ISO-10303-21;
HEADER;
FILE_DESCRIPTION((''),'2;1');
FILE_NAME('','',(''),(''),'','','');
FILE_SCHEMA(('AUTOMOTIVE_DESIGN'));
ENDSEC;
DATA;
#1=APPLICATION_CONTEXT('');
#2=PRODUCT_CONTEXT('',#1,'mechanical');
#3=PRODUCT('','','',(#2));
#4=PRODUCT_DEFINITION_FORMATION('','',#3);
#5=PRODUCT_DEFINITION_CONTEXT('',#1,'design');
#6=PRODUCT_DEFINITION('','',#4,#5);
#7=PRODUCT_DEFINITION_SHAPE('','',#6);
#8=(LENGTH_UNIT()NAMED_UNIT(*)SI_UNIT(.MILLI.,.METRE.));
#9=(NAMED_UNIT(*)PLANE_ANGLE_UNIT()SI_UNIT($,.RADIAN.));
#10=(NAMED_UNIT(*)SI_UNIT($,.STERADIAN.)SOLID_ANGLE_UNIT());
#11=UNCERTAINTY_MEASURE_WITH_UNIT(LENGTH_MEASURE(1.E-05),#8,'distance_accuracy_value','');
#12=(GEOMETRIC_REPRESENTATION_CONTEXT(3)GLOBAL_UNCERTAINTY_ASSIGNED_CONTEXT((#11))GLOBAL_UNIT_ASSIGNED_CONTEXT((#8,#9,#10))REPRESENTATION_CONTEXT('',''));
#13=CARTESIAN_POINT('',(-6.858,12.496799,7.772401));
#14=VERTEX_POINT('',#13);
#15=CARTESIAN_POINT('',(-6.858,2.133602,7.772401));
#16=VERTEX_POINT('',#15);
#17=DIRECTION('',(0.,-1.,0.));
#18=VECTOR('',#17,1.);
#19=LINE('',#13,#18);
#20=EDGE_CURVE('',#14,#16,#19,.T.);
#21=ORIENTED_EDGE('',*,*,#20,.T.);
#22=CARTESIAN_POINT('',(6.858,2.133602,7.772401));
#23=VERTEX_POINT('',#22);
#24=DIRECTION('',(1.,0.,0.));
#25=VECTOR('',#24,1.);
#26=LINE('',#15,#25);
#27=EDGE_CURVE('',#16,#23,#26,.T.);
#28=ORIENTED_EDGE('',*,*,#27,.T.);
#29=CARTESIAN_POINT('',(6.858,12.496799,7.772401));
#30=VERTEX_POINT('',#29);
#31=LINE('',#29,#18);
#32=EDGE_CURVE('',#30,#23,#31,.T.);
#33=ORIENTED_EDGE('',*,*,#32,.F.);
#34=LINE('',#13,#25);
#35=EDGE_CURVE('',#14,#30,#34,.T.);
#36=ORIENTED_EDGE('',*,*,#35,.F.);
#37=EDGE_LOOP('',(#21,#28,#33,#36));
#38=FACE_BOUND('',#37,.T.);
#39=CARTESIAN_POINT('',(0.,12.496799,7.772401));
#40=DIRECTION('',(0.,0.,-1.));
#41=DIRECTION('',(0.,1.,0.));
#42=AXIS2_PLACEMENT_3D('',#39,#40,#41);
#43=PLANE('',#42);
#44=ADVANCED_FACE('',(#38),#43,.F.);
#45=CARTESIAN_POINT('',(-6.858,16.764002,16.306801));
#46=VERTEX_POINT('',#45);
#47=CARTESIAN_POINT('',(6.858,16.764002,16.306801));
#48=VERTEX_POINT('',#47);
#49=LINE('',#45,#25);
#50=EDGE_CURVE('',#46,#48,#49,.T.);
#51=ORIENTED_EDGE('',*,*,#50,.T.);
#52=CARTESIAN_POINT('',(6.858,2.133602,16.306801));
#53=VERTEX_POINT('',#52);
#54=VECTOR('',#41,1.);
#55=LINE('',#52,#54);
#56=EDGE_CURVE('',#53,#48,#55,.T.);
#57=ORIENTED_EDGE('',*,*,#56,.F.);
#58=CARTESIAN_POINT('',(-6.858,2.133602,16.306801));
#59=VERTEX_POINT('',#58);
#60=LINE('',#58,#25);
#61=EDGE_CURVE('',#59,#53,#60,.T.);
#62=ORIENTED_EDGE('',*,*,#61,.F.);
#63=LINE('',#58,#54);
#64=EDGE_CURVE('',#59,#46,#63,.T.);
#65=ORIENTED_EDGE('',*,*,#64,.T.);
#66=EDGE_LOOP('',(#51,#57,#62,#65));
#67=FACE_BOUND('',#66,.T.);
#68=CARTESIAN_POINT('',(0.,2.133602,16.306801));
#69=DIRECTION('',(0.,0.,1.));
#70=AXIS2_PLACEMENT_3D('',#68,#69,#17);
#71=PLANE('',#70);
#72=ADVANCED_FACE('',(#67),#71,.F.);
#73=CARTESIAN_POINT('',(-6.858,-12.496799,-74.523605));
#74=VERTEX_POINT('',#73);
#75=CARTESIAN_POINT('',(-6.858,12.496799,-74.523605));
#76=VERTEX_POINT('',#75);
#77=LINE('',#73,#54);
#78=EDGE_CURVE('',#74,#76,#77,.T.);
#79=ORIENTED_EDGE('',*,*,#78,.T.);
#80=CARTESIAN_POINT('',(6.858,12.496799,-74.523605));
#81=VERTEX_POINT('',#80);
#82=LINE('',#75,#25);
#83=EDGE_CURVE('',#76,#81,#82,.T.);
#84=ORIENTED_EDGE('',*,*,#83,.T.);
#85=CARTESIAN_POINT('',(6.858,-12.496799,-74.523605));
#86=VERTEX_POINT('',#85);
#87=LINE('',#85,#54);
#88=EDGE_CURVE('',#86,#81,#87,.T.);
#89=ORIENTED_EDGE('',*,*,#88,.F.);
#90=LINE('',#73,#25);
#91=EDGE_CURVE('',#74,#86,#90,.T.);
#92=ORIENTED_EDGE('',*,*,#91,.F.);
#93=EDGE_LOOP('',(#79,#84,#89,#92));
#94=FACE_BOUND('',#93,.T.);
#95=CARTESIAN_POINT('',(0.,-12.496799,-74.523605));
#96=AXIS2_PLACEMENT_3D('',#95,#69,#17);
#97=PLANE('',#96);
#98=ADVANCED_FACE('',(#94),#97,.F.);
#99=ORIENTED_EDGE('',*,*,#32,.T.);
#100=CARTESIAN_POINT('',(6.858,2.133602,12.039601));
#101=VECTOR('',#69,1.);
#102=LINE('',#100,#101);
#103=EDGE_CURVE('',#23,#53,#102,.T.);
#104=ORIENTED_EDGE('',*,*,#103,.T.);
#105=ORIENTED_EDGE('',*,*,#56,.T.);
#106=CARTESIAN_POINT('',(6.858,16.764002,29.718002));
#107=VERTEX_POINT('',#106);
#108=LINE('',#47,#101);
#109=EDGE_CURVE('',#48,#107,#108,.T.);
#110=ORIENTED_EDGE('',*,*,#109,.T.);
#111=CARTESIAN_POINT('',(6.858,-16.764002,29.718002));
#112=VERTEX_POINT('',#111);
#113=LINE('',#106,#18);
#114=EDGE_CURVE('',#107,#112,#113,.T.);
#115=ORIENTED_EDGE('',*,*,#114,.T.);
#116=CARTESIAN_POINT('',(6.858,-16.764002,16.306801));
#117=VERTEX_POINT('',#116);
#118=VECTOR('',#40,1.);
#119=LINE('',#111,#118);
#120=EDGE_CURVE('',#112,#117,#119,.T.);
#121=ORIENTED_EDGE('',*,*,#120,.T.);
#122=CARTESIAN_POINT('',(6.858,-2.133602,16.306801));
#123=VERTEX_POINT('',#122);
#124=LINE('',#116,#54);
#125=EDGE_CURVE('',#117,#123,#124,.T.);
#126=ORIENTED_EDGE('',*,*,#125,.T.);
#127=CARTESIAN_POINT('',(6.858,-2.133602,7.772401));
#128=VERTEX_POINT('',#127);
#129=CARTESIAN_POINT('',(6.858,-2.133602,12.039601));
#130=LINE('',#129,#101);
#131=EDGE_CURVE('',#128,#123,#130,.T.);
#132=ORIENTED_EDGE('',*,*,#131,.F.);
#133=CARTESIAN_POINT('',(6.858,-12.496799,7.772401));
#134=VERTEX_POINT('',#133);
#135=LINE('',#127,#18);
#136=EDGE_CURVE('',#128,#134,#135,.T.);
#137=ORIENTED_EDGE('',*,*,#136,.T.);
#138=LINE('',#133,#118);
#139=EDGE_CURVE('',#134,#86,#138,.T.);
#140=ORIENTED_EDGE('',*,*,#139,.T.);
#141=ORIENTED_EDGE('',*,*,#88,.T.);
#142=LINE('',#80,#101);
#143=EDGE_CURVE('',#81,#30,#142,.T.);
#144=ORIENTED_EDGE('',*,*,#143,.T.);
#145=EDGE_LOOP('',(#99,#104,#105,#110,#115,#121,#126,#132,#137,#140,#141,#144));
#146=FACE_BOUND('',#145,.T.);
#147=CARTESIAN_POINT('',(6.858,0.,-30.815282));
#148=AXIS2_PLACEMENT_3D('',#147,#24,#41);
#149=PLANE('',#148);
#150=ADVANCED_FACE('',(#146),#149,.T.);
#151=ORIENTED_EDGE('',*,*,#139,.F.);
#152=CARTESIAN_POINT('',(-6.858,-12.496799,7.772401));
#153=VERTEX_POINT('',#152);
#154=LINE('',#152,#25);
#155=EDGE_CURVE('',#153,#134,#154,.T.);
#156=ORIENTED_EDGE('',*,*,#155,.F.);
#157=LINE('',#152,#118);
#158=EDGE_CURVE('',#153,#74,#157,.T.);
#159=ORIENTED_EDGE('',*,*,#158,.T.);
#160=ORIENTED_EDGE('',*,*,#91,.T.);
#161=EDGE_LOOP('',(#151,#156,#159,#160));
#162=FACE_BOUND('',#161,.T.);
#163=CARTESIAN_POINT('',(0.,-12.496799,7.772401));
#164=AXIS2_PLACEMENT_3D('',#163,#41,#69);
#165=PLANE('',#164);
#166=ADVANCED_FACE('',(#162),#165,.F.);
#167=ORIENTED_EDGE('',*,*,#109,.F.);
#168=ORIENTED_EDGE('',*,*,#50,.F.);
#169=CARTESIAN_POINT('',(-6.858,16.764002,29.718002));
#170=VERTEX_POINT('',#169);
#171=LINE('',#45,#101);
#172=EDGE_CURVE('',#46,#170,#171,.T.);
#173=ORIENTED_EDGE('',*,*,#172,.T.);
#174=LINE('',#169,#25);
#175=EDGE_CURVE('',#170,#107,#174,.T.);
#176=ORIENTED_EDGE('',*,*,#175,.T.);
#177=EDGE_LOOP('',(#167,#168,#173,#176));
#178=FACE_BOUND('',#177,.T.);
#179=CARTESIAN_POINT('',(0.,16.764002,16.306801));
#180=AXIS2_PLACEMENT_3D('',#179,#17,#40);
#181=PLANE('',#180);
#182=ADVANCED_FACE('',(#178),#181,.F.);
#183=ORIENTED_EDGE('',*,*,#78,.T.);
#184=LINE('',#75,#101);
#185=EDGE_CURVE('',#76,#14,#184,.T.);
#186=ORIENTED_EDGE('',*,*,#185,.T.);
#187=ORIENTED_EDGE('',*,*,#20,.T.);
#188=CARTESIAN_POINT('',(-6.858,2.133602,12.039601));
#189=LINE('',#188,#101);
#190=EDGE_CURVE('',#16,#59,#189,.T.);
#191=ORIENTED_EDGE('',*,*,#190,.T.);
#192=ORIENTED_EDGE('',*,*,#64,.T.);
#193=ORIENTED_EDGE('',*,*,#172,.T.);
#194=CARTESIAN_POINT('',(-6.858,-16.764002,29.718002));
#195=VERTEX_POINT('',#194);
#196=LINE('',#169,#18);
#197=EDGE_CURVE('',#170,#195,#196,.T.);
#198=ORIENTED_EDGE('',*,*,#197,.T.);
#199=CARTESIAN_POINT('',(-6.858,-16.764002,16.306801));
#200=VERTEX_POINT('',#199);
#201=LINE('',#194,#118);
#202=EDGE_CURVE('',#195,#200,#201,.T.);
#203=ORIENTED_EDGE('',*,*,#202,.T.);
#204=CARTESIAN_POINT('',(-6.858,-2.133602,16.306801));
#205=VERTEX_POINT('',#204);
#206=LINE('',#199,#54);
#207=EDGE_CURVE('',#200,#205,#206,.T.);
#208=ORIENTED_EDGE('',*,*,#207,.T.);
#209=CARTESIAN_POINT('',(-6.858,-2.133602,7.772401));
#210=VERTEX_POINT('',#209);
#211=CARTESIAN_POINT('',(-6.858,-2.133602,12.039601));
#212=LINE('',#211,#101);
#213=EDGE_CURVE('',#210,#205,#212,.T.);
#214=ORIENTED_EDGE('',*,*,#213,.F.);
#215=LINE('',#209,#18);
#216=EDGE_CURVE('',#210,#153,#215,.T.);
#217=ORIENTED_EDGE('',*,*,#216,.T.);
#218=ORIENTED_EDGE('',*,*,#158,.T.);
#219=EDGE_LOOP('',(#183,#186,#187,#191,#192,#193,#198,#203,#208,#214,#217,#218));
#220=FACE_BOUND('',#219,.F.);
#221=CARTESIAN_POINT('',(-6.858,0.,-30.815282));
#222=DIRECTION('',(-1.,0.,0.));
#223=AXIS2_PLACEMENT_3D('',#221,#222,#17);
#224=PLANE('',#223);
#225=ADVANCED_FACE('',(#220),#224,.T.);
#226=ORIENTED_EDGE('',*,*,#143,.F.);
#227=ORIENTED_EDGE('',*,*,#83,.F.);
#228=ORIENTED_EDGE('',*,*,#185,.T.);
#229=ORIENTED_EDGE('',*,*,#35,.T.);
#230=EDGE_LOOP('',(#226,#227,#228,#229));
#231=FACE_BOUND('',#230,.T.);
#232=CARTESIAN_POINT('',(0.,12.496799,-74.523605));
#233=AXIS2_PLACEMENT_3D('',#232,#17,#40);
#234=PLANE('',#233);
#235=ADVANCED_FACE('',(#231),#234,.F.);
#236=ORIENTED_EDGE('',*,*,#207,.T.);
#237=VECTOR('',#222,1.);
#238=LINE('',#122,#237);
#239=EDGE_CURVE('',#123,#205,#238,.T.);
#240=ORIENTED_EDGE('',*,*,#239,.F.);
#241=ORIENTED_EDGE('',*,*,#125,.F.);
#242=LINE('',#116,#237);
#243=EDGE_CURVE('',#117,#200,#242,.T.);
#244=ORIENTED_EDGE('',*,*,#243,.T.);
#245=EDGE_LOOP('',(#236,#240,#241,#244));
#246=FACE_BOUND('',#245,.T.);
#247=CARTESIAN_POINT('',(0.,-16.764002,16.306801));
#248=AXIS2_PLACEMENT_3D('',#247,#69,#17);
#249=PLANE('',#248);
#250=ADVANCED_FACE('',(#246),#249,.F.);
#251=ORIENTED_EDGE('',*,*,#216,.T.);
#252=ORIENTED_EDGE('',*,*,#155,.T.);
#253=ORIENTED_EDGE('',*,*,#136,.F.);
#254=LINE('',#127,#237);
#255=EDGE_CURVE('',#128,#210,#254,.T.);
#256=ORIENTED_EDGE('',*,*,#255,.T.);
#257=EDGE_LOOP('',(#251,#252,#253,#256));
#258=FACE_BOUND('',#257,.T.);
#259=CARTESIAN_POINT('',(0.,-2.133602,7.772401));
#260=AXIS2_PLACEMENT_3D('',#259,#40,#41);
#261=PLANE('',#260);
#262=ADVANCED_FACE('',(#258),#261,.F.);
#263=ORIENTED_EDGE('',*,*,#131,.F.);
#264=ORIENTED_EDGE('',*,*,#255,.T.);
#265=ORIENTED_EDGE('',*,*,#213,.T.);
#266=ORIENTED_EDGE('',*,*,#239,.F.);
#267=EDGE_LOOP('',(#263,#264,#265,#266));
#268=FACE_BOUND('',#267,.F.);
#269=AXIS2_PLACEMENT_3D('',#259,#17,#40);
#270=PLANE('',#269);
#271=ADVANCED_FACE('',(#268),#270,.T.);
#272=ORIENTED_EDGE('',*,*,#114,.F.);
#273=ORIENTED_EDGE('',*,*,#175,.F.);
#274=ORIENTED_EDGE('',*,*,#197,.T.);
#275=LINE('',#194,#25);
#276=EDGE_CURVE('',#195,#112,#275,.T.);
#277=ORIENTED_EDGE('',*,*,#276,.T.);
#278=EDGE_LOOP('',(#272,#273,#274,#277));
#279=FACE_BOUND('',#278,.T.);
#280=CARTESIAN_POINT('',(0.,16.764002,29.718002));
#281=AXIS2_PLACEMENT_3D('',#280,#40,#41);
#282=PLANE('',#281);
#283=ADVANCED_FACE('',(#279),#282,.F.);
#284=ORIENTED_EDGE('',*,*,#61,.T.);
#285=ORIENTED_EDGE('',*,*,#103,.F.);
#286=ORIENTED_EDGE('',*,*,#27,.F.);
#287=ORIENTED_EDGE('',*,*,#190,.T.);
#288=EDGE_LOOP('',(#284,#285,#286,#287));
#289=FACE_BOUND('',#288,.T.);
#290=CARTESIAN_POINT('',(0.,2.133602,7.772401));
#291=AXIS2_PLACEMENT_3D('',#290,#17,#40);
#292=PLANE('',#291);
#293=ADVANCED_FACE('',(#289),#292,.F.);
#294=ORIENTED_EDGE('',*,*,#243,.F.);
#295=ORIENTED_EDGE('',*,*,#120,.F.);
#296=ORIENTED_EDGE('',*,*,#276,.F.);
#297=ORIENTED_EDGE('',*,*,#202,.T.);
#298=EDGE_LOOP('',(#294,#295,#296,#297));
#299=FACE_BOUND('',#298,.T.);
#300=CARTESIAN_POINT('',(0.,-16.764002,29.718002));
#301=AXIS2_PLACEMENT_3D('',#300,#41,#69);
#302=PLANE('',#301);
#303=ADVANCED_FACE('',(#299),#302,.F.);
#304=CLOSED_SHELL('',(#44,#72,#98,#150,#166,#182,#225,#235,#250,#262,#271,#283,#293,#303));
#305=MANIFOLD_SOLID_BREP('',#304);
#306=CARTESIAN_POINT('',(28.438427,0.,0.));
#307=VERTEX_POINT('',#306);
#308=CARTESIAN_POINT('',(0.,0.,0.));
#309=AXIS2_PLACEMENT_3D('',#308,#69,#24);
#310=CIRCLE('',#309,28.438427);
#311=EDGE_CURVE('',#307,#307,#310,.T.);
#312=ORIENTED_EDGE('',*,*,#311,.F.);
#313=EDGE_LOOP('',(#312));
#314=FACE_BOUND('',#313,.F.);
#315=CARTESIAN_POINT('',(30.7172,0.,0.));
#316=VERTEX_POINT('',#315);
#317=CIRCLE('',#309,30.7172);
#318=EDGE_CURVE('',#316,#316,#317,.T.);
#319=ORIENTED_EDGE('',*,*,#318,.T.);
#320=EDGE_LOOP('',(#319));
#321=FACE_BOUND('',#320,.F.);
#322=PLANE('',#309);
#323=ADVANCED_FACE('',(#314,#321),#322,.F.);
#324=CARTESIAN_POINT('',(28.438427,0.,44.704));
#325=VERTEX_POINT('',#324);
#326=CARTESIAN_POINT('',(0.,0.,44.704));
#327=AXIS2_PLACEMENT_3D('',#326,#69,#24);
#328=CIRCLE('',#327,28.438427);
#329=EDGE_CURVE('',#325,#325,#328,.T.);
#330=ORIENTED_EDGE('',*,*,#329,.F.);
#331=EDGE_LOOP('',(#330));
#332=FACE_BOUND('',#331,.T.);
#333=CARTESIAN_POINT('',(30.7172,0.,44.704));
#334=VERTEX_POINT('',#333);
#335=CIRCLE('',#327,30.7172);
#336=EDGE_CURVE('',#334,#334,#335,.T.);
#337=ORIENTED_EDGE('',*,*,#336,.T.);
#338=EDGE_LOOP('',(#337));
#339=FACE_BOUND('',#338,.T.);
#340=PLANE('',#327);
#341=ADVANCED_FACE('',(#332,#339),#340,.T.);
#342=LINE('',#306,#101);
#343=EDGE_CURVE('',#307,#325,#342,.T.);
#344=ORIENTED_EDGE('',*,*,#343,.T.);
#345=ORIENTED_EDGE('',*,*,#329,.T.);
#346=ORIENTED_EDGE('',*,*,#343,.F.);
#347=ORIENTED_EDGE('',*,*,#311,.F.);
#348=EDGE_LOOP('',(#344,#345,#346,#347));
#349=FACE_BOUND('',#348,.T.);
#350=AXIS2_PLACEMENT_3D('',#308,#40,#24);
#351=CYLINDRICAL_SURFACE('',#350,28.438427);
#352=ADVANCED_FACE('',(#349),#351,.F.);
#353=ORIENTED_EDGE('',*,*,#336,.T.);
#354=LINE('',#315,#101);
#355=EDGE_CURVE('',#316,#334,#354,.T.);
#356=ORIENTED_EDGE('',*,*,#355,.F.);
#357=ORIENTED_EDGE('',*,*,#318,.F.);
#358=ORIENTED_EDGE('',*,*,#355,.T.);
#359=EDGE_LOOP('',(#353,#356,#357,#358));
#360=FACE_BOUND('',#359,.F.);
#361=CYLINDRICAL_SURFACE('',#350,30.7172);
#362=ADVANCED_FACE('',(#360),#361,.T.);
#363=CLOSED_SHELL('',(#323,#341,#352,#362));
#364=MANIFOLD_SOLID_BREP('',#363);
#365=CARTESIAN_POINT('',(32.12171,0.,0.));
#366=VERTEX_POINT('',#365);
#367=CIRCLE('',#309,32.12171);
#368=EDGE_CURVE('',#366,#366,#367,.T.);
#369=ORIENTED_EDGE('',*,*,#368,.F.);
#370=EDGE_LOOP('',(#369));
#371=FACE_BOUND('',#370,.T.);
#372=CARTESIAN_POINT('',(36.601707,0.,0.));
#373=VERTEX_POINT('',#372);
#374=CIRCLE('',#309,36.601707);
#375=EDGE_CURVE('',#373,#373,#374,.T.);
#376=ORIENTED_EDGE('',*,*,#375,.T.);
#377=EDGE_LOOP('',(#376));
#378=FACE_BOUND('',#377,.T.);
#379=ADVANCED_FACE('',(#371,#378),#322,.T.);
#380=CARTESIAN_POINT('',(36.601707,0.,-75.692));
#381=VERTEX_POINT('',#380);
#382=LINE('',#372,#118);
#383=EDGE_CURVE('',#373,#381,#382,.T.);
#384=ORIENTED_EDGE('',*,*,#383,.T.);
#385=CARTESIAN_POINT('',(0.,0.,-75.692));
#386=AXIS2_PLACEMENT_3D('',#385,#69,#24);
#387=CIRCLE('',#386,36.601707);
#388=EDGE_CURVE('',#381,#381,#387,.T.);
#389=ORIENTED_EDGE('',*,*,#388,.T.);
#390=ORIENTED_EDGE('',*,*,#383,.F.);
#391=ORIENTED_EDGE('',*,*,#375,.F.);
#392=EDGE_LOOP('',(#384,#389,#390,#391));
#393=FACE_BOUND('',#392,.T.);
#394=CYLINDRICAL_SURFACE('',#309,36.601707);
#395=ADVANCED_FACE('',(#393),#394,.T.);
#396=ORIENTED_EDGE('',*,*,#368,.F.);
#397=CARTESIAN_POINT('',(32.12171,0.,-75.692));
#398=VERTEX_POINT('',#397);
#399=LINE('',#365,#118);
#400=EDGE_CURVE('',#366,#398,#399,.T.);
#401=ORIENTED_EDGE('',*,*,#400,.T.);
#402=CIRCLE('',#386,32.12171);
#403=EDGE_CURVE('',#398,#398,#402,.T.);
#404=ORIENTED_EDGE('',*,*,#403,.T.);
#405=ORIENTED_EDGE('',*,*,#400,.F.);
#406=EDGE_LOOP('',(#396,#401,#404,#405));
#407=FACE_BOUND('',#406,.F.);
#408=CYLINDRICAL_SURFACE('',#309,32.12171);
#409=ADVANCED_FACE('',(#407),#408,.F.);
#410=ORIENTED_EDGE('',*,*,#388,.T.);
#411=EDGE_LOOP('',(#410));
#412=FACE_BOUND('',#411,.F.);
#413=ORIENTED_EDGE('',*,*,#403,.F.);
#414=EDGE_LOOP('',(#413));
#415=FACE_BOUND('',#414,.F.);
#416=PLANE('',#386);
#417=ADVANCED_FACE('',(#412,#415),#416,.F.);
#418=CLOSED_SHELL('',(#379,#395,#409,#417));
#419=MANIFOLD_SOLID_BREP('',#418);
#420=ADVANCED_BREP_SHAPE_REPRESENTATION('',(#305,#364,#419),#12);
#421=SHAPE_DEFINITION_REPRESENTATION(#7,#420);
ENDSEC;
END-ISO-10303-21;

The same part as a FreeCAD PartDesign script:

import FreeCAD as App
import Part
import Sketcher
from FreeCAD import Vector
Q = App.Units.Quantity


def add_polygon(sketch, points):
    """Adds a closed chain of lines whose ends are joined by coincident constraints."""
    first, n = sketch.GeometryCount, len(points)
    for a, b in zip(points, points[1:] + points[:1]):
        sketch.addGeometry(Part.LineSegment(App.Vector(*a, 0), App.Vector(*b, 0)), False)
    for i in range(n):
        sketch.addConstraint(Sketcher.Constraint("Coincident", first + i, 2, first + (i + 1) % n, 1))

doc = App.newDocument("Part")
body = doc.addObject("PartDesign::Body", "Body")

# Sketch on XY plane
sketch1 = body.newObject("Sketcher::SketchObject", "Sketch")
sketch1.AttachmentSupport = (doc.getObject("XY_Plane"), [""])
sketch1.MapMode = "FlatFace"
sketch1.addGeometry([
    Part.Circle(Vector(0, 0, 0), Vector(0, 0, 1), 37),
    Part.Circle(Vector(0, 0, 0), Vector(0, 0, 1), 32),
], False)
sketch1.addConstraint([
    Sketcher.Constraint("Coincident", 0, 3, -1, 1),
    Sketcher.Constraint("Coincident", 1, 3, -1, 1),
    Sketcher.Constraint("Diameter", 1, 64.243421),
    Sketcher.Constraint("Diameter", 0, 73.203413),
])
pad1 = body.newObject("PartDesign::Pad", "Pad")
pad1.Profile = sketch1
pad1.Length = Q("2.98 in")
pad1.Reversed = True
body2 = doc.addObject("PartDesign::Body", "Body001")

# Sketch on XY plane
sketch2 = body2.newObject("Sketcher::SketchObject", "Sketch001")
sketch2.AttachmentSupport = (doc.getObject("XY_Plane001"), [""])
sketch2.MapMode = "FlatFace"
sketch2.addGeometry([
    Part.Circle(Vector(0, 0, 0), Vector(0, 0, 1), 31),
    Part.Circle(Vector(0, 0, 0), Vector(0, 0, 1), 28),
], False)
sketch2.addConstraint([
    Sketcher.Constraint("Coincident", 0, 3, -1, 1),
    Sketcher.Constraint("Coincident", 1, 3, -1, 1),
    Sketcher.Constraint("Diameter", 0, 61.434401),
    Sketcher.Constraint("Diameter", 1, 56.876854),
])
pad2 = body2.newObject("PartDesign::Pad", "Pad001")
pad2.Profile = sketch2
pad2.Length = Q("1.76 in")
body3 = doc.addObject("PartDesign::Body", "Body002")

# Sketch on YZ plane
sketch3 = body3.newObject("Sketcher::SketchObject", "Sketch002")
sketch3.AttachmentSupport = (doc.getObject("YZ_Plane002"), [""])
sketch3.MapMode = "FlatFace"
add_polygon(sketch3, [(-2, 8), (-12, 8), (-12, -75), (12, -75), (12, 8), (2, 8), (2, 16), (17, 16), (17, 30), (-17, 30), (-17, 16), (-2, 16)])  # lines 0-11
sketch3.addConstraint([
    Sketcher.Constraint("Horizontal", 0),
    Sketcher.Constraint("Vertical", 1),
    Sketcher.Constraint("Horizontal", 2),
    Sketcher.Constraint("Vertical", 3),
    Sketcher.Constraint("Horizontal", 4),
    Sketcher.Constraint("Vertical", 5),
    Sketcher.Constraint("Horizontal", 6),
    Sketcher.Constraint("Vertical", 7),
    Sketcher.Constraint("Horizontal", 8),
    Sketcher.Constraint("Vertical", 9),
    Sketcher.Constraint("Horizontal", 10),
    Sketcher.Constraint("Vertical", 11),
    Sketcher.Constraint("Symmetric", 0, 2, 3, 2, -2),
    Sketcher.Constraint("Symmetric", 6, 2, 9, 2, -2),
    Sketcher.Constraint("Equal", 0, 4),
    Sketcher.Constraint("DistanceX", 8, 2, 8, 1, Q("1.3200002 in")),
    Sketcher.Constraint("DistanceX", 0, 2, 0, 1, Q("0.4079999 in")),
    Sketcher.Constraint("DistanceX", 2, 1, 2, 2, Q("0.9839999 in")),
    Sketcher.Constraint("DistanceY", 5, 1, 5, 2, Q("0.336 in")),
    Sketcher.Constraint("DistanceY", 7, 1, 7, 2, Q("0.5280001 in")),
    Sketcher.Constraint("DistanceY", -1, 1, 7, 2, Q("1.1700001 in")),
    Sketcher.Constraint("DistanceY", 1, 2, -1, 1, Q("2.9340002 in")),
])
pad3 = body3.newObject("PartDesign::Pad", "Pad002")
pad3.Profile = sketch3
pad3.Length = Q("0.27 in")
body4 = doc.addObject("PartDesign::Body", "Body003")
doc.recompute()

body4.BaseFeature = body3
doc.recompute()

mirroring = doc.addObject("Part::Mirroring", "Mirroring")
mirroring.Source = body3
mirroring.Base = Vector(0, 0, 0)
mirroring.Normal = Vector(1, 0, 0)
body5 = doc.addObject("PartDesign::Body", "Body004")
body5.BaseFeature = mirroring
boolean = body4.newObject("PartDesign::Boolean", "Boolean")
boolean.Type = "Fuse"
boolean.addObjects([body5])
doc.recompute()
mirroring.Visibility = False

doc.recompute()
